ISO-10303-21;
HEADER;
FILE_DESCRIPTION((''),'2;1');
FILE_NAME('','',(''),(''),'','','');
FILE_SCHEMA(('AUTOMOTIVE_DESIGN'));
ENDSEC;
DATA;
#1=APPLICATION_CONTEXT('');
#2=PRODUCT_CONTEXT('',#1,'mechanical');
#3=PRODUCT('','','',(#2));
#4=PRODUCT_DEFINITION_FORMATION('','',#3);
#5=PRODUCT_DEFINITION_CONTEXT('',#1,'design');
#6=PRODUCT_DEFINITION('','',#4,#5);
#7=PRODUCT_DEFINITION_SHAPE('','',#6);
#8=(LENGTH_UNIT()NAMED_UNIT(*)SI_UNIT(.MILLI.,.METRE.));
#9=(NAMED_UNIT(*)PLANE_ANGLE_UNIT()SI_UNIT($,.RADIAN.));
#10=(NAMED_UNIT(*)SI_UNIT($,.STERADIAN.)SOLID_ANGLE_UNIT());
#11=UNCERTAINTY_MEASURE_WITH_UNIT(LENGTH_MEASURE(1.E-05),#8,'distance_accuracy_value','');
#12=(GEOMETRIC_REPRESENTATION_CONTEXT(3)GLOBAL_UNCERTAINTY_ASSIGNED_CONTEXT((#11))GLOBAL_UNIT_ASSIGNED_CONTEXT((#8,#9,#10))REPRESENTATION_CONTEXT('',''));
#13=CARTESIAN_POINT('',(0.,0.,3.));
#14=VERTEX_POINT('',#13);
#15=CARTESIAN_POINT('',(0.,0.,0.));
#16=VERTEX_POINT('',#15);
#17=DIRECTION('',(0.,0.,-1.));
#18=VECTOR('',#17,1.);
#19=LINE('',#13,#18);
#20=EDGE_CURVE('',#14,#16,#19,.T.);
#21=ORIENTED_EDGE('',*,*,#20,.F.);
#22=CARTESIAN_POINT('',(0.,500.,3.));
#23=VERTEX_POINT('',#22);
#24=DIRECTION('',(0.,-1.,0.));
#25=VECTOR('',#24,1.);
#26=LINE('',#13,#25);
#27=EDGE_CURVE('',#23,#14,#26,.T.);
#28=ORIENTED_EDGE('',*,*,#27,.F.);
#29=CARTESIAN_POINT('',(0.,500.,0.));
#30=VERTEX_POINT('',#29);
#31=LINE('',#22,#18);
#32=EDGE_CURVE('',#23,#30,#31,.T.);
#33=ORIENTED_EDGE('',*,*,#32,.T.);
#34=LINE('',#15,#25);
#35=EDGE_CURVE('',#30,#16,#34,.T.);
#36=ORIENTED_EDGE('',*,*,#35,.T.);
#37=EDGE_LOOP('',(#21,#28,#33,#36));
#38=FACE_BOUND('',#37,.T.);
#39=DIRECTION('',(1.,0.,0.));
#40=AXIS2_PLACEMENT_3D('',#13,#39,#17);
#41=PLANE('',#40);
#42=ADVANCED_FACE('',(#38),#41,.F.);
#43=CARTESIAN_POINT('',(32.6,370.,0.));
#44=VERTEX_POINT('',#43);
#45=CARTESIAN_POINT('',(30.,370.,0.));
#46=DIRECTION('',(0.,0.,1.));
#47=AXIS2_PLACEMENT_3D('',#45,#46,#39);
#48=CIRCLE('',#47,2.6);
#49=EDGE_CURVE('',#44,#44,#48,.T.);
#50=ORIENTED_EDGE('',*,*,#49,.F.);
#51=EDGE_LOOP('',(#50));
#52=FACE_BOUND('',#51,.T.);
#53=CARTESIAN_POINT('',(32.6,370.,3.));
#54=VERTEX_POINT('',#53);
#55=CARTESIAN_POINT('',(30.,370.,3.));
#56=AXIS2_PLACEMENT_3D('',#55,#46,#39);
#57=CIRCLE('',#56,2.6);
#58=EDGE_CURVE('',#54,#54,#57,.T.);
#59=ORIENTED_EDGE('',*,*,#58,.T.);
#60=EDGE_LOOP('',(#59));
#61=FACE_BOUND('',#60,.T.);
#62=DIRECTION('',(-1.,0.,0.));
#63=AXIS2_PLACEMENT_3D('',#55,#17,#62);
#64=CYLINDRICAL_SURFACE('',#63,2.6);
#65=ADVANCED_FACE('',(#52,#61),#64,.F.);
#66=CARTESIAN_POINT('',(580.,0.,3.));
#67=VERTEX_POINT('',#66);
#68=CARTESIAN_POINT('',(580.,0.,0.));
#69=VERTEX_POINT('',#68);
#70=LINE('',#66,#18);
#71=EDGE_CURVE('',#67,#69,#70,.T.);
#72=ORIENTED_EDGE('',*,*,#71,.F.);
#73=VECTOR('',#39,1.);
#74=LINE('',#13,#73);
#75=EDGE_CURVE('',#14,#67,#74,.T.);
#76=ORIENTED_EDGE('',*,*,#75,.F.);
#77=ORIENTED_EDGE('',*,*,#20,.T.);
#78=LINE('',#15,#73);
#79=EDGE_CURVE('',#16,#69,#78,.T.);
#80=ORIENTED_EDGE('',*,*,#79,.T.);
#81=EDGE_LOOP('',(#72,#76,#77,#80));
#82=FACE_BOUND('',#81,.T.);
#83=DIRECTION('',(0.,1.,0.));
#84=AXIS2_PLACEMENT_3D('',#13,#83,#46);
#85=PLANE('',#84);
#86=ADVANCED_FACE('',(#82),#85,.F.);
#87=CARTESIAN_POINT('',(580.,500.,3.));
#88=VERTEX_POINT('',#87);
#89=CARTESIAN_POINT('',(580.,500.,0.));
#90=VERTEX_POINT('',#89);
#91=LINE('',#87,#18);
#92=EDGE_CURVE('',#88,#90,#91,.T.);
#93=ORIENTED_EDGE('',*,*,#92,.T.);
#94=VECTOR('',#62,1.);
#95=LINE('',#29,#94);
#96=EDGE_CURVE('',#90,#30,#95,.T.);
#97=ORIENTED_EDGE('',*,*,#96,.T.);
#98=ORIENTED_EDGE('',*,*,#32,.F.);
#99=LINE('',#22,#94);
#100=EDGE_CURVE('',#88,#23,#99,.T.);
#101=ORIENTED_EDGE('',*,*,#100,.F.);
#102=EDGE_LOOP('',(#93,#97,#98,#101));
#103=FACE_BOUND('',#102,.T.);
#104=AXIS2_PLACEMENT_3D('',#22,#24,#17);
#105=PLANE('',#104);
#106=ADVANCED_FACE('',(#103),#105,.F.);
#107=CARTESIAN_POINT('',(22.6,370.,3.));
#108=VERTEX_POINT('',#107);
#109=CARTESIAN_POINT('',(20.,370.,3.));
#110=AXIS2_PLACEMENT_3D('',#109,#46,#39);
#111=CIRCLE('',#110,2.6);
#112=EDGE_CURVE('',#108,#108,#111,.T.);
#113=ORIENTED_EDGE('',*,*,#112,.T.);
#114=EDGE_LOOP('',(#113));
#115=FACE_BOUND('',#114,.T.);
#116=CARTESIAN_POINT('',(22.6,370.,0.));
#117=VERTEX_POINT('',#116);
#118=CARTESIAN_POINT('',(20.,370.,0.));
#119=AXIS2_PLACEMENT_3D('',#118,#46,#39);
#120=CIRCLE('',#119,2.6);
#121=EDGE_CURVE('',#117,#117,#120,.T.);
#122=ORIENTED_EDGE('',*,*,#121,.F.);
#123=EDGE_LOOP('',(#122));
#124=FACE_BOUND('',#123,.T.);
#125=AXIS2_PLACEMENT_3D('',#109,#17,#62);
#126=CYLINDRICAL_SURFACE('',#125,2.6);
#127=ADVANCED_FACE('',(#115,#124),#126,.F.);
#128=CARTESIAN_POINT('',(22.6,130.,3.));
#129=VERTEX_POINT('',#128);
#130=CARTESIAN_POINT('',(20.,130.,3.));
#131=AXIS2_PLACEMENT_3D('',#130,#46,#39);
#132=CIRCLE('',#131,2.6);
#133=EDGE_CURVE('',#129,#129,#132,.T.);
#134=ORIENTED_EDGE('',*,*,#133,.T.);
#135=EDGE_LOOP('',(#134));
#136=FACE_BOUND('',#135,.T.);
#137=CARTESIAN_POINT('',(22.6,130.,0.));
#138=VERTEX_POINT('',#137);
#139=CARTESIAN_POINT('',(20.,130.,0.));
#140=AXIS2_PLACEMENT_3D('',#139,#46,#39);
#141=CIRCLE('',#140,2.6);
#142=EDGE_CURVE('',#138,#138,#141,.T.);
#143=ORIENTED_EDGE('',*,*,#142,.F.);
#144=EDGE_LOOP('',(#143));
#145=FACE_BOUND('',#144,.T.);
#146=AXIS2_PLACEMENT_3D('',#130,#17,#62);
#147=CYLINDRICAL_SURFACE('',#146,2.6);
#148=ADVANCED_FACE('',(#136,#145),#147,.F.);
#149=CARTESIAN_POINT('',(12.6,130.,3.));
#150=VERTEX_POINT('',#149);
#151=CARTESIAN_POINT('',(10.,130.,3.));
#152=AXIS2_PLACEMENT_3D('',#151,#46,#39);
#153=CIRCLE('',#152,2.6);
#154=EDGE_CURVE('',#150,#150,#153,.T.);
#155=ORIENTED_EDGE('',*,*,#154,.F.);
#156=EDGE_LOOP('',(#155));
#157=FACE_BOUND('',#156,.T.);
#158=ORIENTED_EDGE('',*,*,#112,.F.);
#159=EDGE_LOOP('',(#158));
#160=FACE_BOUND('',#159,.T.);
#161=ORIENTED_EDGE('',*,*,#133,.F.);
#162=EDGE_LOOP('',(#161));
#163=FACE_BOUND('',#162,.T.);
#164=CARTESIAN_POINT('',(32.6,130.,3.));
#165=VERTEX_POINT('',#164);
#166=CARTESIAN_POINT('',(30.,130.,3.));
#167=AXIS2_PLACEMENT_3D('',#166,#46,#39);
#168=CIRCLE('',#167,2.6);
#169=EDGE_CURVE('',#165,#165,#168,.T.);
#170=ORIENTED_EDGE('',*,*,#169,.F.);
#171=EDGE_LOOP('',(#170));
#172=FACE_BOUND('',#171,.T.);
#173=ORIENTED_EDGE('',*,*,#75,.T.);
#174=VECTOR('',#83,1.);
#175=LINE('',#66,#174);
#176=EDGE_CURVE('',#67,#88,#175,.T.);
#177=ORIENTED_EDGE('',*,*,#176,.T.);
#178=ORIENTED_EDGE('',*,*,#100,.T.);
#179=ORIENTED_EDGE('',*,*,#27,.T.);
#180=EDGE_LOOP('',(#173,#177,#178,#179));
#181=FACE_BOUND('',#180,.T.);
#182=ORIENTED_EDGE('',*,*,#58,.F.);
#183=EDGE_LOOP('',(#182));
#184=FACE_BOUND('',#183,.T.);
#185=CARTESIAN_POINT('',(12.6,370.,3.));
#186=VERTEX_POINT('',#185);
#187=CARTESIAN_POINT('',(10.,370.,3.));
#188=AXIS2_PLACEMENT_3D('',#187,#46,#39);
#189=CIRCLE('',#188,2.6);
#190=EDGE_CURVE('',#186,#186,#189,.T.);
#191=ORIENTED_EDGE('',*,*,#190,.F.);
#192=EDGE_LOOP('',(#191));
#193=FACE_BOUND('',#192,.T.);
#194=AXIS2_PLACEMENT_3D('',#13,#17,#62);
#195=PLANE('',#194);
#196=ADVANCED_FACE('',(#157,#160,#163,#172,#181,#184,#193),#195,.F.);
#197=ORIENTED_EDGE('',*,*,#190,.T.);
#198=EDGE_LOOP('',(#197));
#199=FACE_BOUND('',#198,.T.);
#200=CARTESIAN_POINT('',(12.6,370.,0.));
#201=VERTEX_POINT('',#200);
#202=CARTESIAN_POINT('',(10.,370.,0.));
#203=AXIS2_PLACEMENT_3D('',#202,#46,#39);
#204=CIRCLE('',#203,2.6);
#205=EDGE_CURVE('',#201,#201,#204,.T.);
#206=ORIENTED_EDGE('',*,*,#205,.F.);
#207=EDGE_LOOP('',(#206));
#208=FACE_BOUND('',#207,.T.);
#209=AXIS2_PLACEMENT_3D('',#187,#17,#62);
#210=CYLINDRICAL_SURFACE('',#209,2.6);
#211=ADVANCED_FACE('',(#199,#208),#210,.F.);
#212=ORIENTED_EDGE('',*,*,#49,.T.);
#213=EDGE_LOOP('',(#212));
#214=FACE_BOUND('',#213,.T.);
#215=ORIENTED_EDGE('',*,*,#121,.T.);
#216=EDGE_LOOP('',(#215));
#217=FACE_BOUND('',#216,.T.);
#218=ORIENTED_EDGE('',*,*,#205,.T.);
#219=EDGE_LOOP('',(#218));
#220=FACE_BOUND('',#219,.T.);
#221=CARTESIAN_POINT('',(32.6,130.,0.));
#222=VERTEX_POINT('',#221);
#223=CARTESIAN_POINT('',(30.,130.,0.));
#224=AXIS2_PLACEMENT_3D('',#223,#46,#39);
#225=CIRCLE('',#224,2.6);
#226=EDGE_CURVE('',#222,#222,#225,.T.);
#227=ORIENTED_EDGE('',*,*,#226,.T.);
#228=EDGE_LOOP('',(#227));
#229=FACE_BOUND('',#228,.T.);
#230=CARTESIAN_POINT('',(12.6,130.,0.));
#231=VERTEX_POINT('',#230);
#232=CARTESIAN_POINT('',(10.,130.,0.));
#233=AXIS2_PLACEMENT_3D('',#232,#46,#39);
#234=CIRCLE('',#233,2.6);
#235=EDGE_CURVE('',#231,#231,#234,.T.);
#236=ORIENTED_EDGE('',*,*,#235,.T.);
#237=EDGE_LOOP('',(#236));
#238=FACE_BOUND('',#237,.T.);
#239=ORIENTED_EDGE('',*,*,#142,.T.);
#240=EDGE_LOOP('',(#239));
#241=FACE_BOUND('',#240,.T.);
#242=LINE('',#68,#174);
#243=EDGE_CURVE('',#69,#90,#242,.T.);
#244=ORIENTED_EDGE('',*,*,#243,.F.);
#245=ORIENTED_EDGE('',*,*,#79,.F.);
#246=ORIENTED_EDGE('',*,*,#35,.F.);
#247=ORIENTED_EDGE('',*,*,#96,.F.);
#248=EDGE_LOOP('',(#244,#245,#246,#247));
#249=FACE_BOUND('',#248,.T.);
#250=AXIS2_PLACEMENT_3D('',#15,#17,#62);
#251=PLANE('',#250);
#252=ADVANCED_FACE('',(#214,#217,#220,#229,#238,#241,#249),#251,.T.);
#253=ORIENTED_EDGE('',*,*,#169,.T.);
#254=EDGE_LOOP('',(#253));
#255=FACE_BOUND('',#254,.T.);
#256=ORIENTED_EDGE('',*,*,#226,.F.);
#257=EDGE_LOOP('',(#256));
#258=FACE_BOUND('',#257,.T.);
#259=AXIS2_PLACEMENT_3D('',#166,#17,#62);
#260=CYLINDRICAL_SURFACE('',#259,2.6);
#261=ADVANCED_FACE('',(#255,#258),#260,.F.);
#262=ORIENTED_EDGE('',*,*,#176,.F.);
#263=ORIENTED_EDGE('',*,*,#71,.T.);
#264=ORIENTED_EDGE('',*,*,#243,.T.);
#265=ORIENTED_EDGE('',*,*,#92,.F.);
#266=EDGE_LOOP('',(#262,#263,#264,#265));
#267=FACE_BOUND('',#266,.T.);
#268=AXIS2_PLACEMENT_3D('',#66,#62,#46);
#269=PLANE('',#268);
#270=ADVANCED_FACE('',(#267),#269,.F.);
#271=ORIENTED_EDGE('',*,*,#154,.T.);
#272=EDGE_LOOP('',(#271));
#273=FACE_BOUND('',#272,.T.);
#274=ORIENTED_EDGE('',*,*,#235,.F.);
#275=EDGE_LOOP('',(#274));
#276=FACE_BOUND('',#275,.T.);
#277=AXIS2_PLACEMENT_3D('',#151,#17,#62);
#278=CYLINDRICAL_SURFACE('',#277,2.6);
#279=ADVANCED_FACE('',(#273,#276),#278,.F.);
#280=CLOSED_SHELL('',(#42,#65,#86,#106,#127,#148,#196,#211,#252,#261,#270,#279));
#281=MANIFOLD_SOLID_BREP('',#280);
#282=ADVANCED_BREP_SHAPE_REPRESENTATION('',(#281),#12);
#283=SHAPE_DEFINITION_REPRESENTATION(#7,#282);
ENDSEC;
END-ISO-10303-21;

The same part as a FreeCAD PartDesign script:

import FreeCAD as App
import Part
import Sketcher
from FreeCAD import Vector


def add_polygon(sketch, points):
    """Adds a closed chain of lines whose ends are joined by coincident constraints."""
    first, n = sketch.GeometryCount, len(points)
    for a, b in zip(points, points[1:] + points[:1]):
        sketch.addGeometry(Part.LineSegment(App.Vector(*a, 0), App.Vector(*b, 0)), False)
    for i in range(n):
        sketch.addConstraint(Sketcher.Constraint("Coincident", first + i, 2, first + (i + 1) % n, 1))

doc = App.newDocument("Part")
params = doc.addObject("Spreadsheet::Sheet", "Params")
for row, (alias, value) in enumerate([
    ("sketch1_diameter", "5.2 mm"),
    ("sketch1_width", "580 mm"),
    ("sketch1_height", "500 mm"),
    ("pad1_length", "3 mm"),
], start=1):
    params.set(f"A{row}", alias)
    params.set(f"B{row}", "=" + value)
    params.setAlias(f"B{row}", alias)

body = doc.addObject("PartDesign::Body", "Body")

# Sketch on XY plane
sketch1 = body.newObject("Sketcher::SketchObject", "Sketch")
sketch1.AttachmentSupport = (doc.getObject("XY_Plane"), [""])
sketch1.MapMode = "FlatFace"
add_polygon(sketch1, [(0, 500), (0, 0), (580, 0), (580, 500)])  # lines 0-3
sketch1.addGeometry(Part.Circle(Vector(10, 130, 0), Vector(0, 0, 1), 2.6), False)  # 4
sketch1.addGeometry(Part.Circle(Vector(20, 130, 0), Vector(0, 0, 1), 2.6), False)  # 5
sketch1.addGeometry(Part.Circle(Vector(30, 130, 0), Vector(0, 0, 1), 2.6), False)  # 6
sketch1.addGeometry(Part.Circle(Vector(10, 370, 0), Vector(0, 0, 1), 2.6), False)  # 7
sketch1.addGeometry(Part.Circle(Vector(20, 370, 0), Vector(0, 0, 1), 2.6), False)  # 8
sketch1.addGeometry(Part.Circle(Vector(30, 370, 0), Vector(0, 0, 1), 2.6), False)  # 9
sketch1.addConstraint([
    Sketcher.Constraint("Vertical", 0),
    Sketcher.Constraint("Horizontal", 1),
    Sketcher.Constraint("Vertical", 2),
    Sketcher.Constraint("Horizontal", 3),
    Sketcher.Constraint("Coincident", 0, 2, -1, 1),
    Sketcher.Constraint("Equal", 4, 5),
    Sketcher.Constraint("Equal", 5, 6),
    Sketcher.Constraint("Equal", 6, 7),
    Sketcher.Constraint("Equal", 7, 8),
    Sketcher.Constraint("Equal", 8, 9),
    Sketcher.Constraint("Horizontal", 4, 3, 5, 3),
    Sketcher.Constraint("Horizontal", 5, 3, 6, 3),
    Sketcher.Constraint("Horizontal", 7, 3, 8, 3),
    Sketcher.Constraint("Horizontal", 8, 3, 9, 3),
    Sketcher.Constraint("Vertical", 4, 3, 7, 3),
    Sketcher.Constraint("Vertical", 5, 3, 8, 3),
    Sketcher.Constraint("Vertical", 6, 3, 9, 3),
    Sketcher.Constraint("Diameter", 4, 5.2),
    Sketcher.Constraint("DistanceX", 1, 1, 1, 2, 580.0),
    Sketcher.Constraint("DistanceY", 0, 2, 0, 1, 500.0),
    Sketcher.Constraint("DistanceX", -1, 1, 4, 3, 10.0),
    Sketcher.Constraint("DistanceY", -1, 1, 4, 3, 130.0),
    Sketcher.Constraint("DistanceX", -1, 1, 5, 3, 20.0),
    Sketcher.Constraint("DistanceX", -1, 1, 6, 3, 30.0),
    Sketcher.Constraint("DistanceY", -1, 1, 7, 3, 370.0),
])
sketch1.setExpression("Constraints[21]", "Params.sketch1_diameter")
sketch1.setExpression("Constraints[22]", "Params.sketch1_width")
sketch1.setExpression("Constraints[23]", "Params.sketch1_height")
pad1 = body.newObject("PartDesign::Pad", "Pad")
pad1.Profile = sketch1
pad1.setExpression("Length", "Params.pad1_length")

doc.recompute()
